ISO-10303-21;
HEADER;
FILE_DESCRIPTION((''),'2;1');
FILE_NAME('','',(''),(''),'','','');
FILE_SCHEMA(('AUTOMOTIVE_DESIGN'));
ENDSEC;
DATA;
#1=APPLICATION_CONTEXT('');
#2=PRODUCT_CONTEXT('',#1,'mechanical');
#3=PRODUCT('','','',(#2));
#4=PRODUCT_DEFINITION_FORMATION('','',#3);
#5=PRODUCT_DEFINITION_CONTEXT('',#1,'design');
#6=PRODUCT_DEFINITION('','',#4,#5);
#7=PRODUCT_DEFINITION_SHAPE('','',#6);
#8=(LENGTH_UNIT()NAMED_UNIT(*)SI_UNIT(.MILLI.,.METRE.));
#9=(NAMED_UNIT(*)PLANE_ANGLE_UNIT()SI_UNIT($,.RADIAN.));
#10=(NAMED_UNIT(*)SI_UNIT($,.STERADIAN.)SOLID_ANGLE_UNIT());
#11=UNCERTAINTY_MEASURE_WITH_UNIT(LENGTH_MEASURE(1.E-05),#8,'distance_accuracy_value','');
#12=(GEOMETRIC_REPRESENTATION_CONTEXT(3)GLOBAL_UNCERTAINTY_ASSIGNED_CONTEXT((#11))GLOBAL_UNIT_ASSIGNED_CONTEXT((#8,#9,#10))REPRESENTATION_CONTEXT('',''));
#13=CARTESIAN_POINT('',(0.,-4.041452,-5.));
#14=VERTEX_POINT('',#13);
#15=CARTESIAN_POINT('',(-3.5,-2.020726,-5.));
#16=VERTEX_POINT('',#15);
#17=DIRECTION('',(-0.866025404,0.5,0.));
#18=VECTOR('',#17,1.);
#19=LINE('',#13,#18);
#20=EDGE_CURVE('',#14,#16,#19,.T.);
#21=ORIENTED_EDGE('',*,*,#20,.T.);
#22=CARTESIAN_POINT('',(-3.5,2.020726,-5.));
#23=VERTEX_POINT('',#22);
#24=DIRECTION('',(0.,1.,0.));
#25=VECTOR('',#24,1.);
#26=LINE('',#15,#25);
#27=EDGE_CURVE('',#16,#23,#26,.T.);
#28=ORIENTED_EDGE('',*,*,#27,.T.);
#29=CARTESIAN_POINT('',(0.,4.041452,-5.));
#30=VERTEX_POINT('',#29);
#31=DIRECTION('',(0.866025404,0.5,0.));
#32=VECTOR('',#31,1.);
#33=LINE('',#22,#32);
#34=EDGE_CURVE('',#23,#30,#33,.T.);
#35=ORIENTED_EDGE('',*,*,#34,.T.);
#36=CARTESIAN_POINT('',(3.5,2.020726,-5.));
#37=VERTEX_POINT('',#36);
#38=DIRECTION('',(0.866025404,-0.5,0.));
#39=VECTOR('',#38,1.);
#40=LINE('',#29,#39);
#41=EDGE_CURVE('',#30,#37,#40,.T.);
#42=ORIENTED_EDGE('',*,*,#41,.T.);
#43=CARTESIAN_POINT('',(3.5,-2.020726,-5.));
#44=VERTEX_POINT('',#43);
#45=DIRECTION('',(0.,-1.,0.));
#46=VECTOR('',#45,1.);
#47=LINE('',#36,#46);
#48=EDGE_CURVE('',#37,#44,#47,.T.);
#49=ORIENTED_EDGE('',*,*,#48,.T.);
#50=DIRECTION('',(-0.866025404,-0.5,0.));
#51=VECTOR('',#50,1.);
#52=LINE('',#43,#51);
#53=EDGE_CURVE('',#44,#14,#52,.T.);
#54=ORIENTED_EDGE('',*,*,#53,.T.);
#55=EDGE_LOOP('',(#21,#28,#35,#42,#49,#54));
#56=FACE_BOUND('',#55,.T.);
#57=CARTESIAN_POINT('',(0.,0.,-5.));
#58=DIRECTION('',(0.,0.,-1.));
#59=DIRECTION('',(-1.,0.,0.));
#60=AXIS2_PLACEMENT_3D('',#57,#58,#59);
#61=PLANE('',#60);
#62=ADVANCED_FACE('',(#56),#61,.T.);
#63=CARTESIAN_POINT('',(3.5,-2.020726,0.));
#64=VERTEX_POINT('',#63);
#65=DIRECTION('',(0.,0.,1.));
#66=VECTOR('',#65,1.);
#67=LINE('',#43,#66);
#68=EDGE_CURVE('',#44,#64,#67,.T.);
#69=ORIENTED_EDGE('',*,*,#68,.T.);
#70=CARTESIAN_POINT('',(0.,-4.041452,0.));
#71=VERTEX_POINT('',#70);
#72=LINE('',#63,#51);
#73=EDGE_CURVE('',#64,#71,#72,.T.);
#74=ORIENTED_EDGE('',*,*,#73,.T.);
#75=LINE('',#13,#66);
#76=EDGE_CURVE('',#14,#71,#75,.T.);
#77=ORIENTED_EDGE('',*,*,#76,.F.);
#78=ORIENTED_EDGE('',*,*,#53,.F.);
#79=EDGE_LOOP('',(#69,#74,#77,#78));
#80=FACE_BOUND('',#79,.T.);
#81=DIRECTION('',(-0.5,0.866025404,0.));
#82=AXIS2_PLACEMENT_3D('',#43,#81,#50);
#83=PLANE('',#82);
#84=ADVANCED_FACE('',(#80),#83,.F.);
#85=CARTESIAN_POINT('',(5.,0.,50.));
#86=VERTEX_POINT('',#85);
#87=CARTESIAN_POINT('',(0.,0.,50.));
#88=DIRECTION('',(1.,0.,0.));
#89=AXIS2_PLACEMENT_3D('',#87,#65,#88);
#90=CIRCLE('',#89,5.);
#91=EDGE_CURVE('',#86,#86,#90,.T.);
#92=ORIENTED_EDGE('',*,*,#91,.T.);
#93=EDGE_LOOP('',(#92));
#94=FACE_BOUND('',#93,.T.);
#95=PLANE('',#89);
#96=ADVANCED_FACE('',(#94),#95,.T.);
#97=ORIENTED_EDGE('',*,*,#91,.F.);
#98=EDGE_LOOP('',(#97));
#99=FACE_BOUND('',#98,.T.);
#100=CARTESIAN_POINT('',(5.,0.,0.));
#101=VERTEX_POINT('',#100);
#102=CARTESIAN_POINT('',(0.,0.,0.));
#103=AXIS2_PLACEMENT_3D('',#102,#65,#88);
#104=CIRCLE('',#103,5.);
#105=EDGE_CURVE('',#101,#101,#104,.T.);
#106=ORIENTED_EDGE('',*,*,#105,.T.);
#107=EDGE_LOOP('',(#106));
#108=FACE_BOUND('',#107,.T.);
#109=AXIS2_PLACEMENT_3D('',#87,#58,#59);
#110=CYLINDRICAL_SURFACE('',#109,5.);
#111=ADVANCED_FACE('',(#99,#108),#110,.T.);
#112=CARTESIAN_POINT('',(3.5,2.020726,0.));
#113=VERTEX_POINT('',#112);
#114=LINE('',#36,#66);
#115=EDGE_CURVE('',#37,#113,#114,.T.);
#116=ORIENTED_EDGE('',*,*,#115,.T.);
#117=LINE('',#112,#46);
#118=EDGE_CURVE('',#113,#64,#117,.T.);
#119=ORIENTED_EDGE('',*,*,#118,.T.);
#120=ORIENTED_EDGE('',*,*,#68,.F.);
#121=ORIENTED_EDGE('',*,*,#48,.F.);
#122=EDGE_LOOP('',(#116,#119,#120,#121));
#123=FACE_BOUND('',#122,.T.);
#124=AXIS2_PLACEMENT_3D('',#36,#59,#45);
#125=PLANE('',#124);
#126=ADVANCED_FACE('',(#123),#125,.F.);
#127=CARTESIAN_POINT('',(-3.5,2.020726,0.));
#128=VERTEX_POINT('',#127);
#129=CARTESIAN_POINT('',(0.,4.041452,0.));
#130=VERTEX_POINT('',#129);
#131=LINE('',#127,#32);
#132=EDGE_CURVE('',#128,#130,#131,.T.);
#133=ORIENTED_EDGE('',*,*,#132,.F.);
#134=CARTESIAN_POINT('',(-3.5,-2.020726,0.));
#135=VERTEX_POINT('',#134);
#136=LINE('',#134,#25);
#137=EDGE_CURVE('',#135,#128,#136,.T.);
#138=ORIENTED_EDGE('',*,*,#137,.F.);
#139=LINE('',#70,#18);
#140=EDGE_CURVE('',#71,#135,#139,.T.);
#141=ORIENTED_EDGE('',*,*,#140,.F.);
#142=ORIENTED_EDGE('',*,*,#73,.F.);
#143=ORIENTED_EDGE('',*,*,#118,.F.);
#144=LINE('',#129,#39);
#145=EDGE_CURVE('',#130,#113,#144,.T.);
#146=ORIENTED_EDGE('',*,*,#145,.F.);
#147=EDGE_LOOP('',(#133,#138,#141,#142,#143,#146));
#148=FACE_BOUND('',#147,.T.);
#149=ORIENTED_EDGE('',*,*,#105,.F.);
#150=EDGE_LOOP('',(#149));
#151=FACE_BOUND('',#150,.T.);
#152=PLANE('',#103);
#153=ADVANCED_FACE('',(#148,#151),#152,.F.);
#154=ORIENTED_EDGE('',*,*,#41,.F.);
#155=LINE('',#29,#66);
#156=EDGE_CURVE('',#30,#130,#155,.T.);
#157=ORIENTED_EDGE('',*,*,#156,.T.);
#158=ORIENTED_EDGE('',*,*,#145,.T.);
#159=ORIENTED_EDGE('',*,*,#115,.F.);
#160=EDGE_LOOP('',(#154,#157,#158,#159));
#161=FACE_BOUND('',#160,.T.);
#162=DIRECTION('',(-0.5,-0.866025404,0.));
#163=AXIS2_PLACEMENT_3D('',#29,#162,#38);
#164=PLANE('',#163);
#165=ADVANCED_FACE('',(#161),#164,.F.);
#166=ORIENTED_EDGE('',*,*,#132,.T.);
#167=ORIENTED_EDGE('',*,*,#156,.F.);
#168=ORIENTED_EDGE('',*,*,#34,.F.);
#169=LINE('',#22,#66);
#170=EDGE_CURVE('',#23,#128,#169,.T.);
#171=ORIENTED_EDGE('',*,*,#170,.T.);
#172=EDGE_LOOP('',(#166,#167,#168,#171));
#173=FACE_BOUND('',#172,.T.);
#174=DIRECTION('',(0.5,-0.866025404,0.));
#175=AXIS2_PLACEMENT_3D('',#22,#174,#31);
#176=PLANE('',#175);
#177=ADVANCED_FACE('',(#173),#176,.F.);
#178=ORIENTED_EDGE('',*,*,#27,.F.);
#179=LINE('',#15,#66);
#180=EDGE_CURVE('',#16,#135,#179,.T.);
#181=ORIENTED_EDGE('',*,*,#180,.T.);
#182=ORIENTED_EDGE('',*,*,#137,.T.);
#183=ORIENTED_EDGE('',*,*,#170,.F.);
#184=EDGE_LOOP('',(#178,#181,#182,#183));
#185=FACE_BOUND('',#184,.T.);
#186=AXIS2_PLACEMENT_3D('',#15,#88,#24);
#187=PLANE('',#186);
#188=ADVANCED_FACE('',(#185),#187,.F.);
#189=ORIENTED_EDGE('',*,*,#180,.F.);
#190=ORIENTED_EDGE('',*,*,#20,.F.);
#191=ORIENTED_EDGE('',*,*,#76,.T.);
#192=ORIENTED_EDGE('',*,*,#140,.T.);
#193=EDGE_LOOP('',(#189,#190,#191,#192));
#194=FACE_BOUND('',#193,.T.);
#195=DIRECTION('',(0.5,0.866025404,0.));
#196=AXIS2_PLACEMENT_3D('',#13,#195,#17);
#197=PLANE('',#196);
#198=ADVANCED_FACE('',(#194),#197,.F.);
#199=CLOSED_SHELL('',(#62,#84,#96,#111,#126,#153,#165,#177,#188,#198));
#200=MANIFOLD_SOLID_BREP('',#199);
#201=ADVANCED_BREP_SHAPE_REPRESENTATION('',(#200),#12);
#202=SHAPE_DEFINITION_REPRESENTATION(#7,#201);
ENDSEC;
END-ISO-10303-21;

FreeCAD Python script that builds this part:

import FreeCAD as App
import Part
import Sketcher
Q = App.Units.Quantity


def add_polygon(sketch, points):
    """Adds a closed chain of lines whose ends are joined by coincident constraints."""
    first, n = sketch.GeometryCount, len(points)
    for a, b in zip(points, points[1:] + points[:1]):
        sketch.addGeometry(Part.LineSegment(App.Vector(*a, 0), App.Vector(*b, 0)), False)
    for i in range(n):
        sketch.addConstraint(Sketcher.Constraint("Coincident", first + i, 2, first + (i + 1) % n, 1))

doc = App.newDocument("Part")
body = doc.addObject("PartDesign::Body", "Body")

# Sketch on XY plane
sketch1 = doc.addObject("Sketcher::SketchObject", "Sketch")
body.addObject(sketch1)
sketch1.AttachmentSupport = (doc.XY_Plane, [""])
sketch1.MapMode = "FlatFace"
sketch1.addGeometry(Part.Circle(App.Vector(0, 0, 0), App.Vector(0, 0, 1), 5), False)
sketch1.addConstraint(Sketcher.Constraint("Coincident", 0, 3, -1, 1))
sketch1.addConstraint(Sketcher.Constraint("Diameter", 0, 10.0))
pad1 = doc.addObject("PartDesign::Pad", "Pad")
body.addObject(pad1)
pad1.Profile = sketch1
pad1.Length = 50

# Sketch on XY plane
sketch2 = doc.addObject("Sketcher::SketchObject", "Sketch001")
body.addObject(sketch2)
sketch2.AttachmentSupport = (doc.XY_Plane, [""])
sketch2.MapMode = "FlatFace"
add_polygon(sketch2, [(0, 4.041452), (3.5, 2.020726), (3.5, -2.020726), (0, -4.041452), (-3.5, -2.020726), (-3.5, 2.020726)])  # lines 0-5
sketch2.addConstraint(Sketcher.Constraint("Vertical", 1))
sketch2.addConstraint(Sketcher.Constraint("Vertical", 4))
sketch2.addConstraint(Sketcher.Constraint("Symmetric", 0, 2, 3, 2, -1, 1))
sketch2.addConstraint(Sketcher.Constraint("Symmetric", 2, 2, 5, 2, -1, 1))
sketch2.addConstraint(Sketcher.Constraint("PointOnObject", 2, 2, -2))
sketch2.addConstraint(Sketcher.Constraint("Parallel", 2, 5))
sketch2.addConstraint(Sketcher.Constraint("Horizontal", 1, 2, 3, 2))
sketch2.addConstraint(Sketcher.Constraint("Angle", 0, Q("-30 deg")))
sketch2.addConstraint(Sketcher.Constraint("DistanceX", 3, 2, 1, 2, 7.0))
sketch2.addConstraint(Sketcher.Constraint("DistanceY", 1, 2, 1, 1, 4.041452))
pad2 = doc.addObject("PartDesign::Pad", "Pad001")
body.addObject(pad2)
pad2.Profile = sketch2
pad2.Length = 5
pad2.Reversed = True

doc.recompute()
